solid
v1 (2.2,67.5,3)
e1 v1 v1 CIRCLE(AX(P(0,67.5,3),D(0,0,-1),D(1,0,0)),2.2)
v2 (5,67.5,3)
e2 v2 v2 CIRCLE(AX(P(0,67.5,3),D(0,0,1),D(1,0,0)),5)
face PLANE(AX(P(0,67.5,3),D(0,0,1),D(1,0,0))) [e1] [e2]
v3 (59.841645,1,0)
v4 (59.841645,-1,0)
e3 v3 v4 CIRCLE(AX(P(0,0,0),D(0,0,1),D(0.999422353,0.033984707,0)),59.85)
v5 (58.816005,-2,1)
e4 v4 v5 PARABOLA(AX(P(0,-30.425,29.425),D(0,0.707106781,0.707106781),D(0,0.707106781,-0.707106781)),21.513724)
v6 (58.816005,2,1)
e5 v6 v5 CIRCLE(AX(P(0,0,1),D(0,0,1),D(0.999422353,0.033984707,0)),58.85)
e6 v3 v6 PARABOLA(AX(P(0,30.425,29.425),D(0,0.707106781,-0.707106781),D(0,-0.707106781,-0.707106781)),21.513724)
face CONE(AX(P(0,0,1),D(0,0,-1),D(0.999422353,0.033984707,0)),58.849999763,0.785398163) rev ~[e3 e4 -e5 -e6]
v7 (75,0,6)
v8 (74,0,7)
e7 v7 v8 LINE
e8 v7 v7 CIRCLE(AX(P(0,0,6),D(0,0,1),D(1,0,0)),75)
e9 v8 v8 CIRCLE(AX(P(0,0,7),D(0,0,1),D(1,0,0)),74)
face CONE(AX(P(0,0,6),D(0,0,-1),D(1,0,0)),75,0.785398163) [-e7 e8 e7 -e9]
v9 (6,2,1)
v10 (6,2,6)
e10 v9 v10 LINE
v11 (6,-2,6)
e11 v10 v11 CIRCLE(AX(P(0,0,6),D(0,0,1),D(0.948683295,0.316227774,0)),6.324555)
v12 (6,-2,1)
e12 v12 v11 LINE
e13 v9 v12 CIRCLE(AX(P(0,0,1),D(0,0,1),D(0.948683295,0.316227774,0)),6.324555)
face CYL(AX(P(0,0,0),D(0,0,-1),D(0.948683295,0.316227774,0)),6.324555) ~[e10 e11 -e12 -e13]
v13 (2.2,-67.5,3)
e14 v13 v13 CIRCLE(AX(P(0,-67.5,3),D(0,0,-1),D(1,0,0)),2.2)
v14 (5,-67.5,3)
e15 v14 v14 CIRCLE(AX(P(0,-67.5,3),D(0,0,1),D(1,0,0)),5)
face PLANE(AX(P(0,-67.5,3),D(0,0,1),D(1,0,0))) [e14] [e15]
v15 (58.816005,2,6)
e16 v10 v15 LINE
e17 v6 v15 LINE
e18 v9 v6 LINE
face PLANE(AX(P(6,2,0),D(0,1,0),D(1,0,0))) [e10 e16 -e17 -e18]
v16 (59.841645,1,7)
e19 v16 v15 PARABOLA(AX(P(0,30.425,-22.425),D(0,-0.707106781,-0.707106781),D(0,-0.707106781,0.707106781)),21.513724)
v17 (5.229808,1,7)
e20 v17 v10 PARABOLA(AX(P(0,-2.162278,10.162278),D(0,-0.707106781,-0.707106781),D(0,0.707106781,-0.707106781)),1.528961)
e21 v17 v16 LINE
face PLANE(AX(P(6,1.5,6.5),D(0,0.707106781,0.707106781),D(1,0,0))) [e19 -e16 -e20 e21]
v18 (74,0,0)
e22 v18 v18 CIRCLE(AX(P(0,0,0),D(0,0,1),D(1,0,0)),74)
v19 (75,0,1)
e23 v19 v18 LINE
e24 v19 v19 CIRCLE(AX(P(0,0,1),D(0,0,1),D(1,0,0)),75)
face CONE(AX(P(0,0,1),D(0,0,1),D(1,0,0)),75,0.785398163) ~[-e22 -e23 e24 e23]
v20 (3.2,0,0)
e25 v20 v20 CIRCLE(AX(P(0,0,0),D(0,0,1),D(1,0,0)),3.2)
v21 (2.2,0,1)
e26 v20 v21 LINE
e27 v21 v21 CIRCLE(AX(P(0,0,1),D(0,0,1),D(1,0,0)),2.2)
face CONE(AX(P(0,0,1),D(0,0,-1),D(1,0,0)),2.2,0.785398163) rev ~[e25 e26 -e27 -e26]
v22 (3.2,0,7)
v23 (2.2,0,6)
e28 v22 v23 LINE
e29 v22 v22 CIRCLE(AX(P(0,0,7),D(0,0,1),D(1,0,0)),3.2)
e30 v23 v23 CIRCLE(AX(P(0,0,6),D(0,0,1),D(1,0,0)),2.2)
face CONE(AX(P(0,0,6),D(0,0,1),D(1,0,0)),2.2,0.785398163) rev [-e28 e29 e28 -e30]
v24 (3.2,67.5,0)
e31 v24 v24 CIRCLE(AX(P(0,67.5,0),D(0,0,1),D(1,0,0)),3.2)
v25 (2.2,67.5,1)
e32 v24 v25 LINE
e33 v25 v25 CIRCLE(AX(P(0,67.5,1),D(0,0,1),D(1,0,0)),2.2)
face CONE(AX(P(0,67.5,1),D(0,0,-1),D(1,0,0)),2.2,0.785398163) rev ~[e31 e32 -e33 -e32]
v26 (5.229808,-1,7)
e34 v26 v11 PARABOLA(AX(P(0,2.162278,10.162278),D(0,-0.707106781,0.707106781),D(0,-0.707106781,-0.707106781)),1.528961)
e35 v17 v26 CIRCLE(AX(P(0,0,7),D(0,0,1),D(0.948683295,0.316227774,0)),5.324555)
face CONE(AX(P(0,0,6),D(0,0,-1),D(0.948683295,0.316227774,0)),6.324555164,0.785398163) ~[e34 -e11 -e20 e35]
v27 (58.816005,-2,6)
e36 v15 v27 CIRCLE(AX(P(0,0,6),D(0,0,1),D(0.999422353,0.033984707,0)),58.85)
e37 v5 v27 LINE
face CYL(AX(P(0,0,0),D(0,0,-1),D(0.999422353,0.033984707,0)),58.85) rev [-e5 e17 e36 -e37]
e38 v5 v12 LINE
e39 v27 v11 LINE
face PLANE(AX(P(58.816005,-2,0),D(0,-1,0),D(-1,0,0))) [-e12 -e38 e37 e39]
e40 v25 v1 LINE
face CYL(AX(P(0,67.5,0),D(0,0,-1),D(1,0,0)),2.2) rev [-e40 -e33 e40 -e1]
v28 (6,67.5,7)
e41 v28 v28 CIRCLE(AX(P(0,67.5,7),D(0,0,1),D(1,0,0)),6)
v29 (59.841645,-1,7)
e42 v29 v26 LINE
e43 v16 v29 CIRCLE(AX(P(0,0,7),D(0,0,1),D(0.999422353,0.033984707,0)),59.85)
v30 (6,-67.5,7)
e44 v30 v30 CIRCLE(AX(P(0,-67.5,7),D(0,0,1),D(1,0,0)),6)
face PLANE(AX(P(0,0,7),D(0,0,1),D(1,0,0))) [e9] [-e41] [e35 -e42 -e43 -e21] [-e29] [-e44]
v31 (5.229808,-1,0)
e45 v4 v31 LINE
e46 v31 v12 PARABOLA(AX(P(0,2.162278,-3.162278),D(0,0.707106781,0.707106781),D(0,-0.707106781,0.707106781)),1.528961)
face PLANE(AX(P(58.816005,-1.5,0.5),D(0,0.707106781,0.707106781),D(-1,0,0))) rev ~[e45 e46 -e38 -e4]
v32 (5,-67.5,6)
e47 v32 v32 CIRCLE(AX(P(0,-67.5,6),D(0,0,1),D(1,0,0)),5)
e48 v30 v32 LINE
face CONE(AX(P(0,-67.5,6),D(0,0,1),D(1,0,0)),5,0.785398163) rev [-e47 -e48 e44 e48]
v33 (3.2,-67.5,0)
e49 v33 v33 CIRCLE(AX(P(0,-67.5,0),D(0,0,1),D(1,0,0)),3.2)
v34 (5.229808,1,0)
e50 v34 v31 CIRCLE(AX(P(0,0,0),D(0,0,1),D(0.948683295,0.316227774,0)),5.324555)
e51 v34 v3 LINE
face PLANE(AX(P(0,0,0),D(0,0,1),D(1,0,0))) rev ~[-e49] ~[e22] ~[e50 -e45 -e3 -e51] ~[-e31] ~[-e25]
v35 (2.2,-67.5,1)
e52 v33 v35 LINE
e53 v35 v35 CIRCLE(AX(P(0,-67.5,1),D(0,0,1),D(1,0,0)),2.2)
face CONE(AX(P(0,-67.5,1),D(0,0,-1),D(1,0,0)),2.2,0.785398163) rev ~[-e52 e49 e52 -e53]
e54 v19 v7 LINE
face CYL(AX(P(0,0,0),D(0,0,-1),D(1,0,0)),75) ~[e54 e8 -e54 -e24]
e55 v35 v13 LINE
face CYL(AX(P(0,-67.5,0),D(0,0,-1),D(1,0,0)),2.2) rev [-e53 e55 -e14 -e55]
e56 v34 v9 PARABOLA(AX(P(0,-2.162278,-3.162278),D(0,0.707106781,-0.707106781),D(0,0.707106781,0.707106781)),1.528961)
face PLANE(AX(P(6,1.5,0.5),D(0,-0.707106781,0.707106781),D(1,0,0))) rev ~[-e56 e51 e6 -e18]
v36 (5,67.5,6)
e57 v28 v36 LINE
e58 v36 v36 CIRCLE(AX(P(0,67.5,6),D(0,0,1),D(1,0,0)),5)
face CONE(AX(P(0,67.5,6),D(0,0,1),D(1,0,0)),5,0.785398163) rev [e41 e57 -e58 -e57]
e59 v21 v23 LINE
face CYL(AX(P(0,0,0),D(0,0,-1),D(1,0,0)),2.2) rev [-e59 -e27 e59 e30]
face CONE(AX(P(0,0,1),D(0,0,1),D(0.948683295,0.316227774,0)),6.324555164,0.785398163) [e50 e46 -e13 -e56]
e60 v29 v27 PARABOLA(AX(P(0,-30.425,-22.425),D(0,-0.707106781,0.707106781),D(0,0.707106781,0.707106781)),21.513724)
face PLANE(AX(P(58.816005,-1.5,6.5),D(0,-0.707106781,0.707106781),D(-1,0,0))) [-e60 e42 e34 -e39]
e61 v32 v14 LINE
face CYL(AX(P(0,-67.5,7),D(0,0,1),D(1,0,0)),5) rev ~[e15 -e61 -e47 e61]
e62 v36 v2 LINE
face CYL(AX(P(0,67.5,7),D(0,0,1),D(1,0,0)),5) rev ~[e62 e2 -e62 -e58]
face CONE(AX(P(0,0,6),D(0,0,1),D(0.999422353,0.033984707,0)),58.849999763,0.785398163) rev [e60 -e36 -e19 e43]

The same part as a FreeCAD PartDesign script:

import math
import FreeCAD as App
import Part
import Sketcher
from FreeCAD import Vector
Q = App.Units.Quantity


def edges_at(feature, points):
    """Names of the edges that pass closest to the given points."""
    edges = feature.Shape.Edges
    near = lambda p: min(range(len(edges)), key=lambda i: edges[i].distToShape(Part.Vertex(*p))[0])
    return sorted({f"Edge{near(p) + 1}" for p in points})

doc = App.newDocument("Part")
params = doc.addObject("Spreadsheet::Sheet", "Params")
for row, (alias, value) in enumerate([
    ("sketch1_diameter", "150 mm"),
    ("sketch1_diameter2", "4.4 mm"),
    ("sketch1_radius", "58.85 mm"),
    ("pad1_length", "7 mm"),
    ("sketch2_diameter", "10 mm"),
    ("pocket1_length", "4 mm"),
    ("chamfer_size", "1 mm"),
], start=1):
    params.set(f"A{row}", alias)
    params.set(f"B{row}", "=" + value)
    params.setAlias(f"B{row}", alias)

body = doc.addObject("PartDesign::Body", "Body")

# Sketch on XY plane
sketch1 = doc.addObject("Sketcher::SketchObject", "Sketch")
body.addObject(sketch1)
sketch1.AttachmentSupport = (doc.XY_Plane, [""])
sketch1.MapMode = "FlatFace"
sketch1.addGeometry(Part.Circle(Vector(0, 0, 0), Vector(0, 0, 1), 75), False)
sketch1.addGeometry(Part.Circle(Vector(0, -67.5, 0), Vector(0, 0, 1), 2.2), False)
sketch1.addGeometry(Part.Circle(Vector(0, 0, 0), Vector(0, 0, 1), 2.2), False)
sketch1.addGeometry(Part.ArcOfCircle(Part.Circle(Vector(0, 0, 0), Vector(0, 0, 1), 58.8), math.radians(2), math.radians(358)), False)
sketch1.addGeometry(Part.LineSegment(Vector(58.8, 2, 0), Vector(6, 2, 0)), False)
sketch1.addGeometry(Part.ArcOfCircle(Part.Circle(Vector(0, 0, 0), Vector(0, 0, 1), 6.3), math.radians(18), math.radians(342)), False)
sketch1.addGeometry(Part.LineSegment(Vector(6, -2, 0), Vector(58.8, -2, 0)), False)
sketch1.addGeometry(Part.Circle(Vector(0, 67.5, 0), Vector(0, 0, 1), 2.2), False)
sketch1.addConstraint(Sketcher.Constraint("Coincident", 3, 1, 4, 1))
sketch1.addConstraint(Sketcher.Constraint("Coincident", 4, 2, 5, 1))
sketch1.addConstraint(Sketcher.Constraint("Coincident", 5, 2, 6, 1))
sketch1.addConstraint(Sketcher.Constraint("Coincident", 6, 2, 3, 2))
sketch1.addConstraint(Sketcher.Constraint("Horizontal", 4))
sketch1.addConstraint(Sketcher.Constraint("Horizontal", 6))
sketch1.addConstraint(Sketcher.Constraint("Coincident", 0, 3, -1, 1))
sketch1.addConstraint(Sketcher.Constraint("Coincident", 2, 3, -1, 1))
sketch1.addConstraint(Sketcher.Constraint("Coincident", 3, 3, -1, 1))
sketch1.addConstraint(Sketcher.Constraint("Coincident", 5, 3, -1, 1))
sketch1.addConstraint(Sketcher.Constraint("Equal", 1, 2))
sketch1.addConstraint(Sketcher.Constraint("Equal", 2, 7))
sketch1.addConstraint(Sketcher.Constraint("Symmetric", 1, 3, 7, 3, -1, 1))
sketch1.addConstraint(Sketcher.Constraint("PointOnObject", 1, 3, -2))
sketch1.addConstraint(Sketcher.Constraint("Vertical", 4, 2, 5, 2))
sketch1.addConstraint(Sketcher.Constraint("Diameter", 0, Q("150 mm")))
sketch1.addConstraint(Sketcher.Constraint("Diameter", 1, Q("4.4 mm")))
sketch1.addConstraint(Sketcher.Constraint("Radius", 3, Q("58.85 mm")))
sketch1.addConstraint(Sketcher.Constraint("DistanceY", -1, 1, 3, 1, Q("2 mm")))
sketch1.addConstraint(Sketcher.Constraint("DistanceX", -1, 1, 4, 2, Q("6 mm")))
sketch1.addConstraint(Sketcher.Constraint("DistanceY", 1, 3, 7, 3, Q("135 mm")))
sketch1.setExpression("Constraints[15]", "Params.sketch1_diameter")
sketch1.setExpression("Constraints[16]", "Params.sketch1_diameter2")
sketch1.setExpression("Constraints[17]", "Params.sketch1_radius")
pad1 = doc.addObject("PartDesign::Pad", "Pad")
body.addObject(pad1)
pad1.Profile = sketch1
pad1.setExpression("Length", "Params.pad1_length")

# Sketch on XY plane
sketch2 = doc.addObject("Sketcher::SketchObject", "Sketch001")
body.addObject(sketch2)
sketch2.AttachmentSupport = (doc.XY_Plane, [""])
sketch2.MapMode = "FlatFace"
sketch2.AttachmentOffset = App.Placement(Vector(0, 0, 7), App.Rotation())
sketch2.addGeometry(Part.Circle(Vector(0, 68, 0), Vector(0, 0, 1), 5), False)
sketch2.addGeometry(Part.Circle(Vector(0, -68, 0), Vector(0, 0, 1), 5), False)
sketch2.addConstraint(Sketcher.Constraint("Equal", 0, 1))
sketch2.addConstraint(Sketcher.Constraint("Symmetric", 0, 3, 1, 3, -1, 1))
sketch2.addConstraint(Sketcher.Constraint("PointOnObject", 0, 3, -2))
sketch2.addConstraint(Sketcher.Constraint("Diameter", 0, Q("10 mm")))
sketch2.addConstraint(Sketcher.Constraint("DistanceY", 1, 3, 0, 3, Q("135 mm")))
sketch2.setExpression("Constraints[3]", "Params.sketch2_diameter")
pocket1 = doc.addObject("PartDesign::Pocket", "Pocket")
body.addObject(pocket1)
pocket1.Profile = sketch2
pocket1.setExpression("Length", "Params.pocket1_length")
doc.recompute()

chamfer = doc.addObject("PartDesign::Chamfer", "Chamfer")
body.addObject(chamfer)
chamfer.Base = (pocket1, edges_at(pocket1, [
    (-75, 0, 7),
    (-5, -67.5, 7),
    (32.408, 2, 7),
    (-6.325, 0, 7),
    (-58.85, 0, 7),
    (32.408, -2, 7),
    (-2.2, 0, 7),
    (-5, 67.5, 7),
    (-75, 0, 0),
    (32.408, 2, 0),
    (-58.85, 0, 0),
    (32.408, -2, 0),
    (-6.325, 0, 0),
    (-2.2, -67.5, 0),
    (-2.2, 67.5, 0),
    (-2.2, 0, 0),
]))
chamfer.setExpression("Size", "Params.chamfer_size")

doc.recompute()
